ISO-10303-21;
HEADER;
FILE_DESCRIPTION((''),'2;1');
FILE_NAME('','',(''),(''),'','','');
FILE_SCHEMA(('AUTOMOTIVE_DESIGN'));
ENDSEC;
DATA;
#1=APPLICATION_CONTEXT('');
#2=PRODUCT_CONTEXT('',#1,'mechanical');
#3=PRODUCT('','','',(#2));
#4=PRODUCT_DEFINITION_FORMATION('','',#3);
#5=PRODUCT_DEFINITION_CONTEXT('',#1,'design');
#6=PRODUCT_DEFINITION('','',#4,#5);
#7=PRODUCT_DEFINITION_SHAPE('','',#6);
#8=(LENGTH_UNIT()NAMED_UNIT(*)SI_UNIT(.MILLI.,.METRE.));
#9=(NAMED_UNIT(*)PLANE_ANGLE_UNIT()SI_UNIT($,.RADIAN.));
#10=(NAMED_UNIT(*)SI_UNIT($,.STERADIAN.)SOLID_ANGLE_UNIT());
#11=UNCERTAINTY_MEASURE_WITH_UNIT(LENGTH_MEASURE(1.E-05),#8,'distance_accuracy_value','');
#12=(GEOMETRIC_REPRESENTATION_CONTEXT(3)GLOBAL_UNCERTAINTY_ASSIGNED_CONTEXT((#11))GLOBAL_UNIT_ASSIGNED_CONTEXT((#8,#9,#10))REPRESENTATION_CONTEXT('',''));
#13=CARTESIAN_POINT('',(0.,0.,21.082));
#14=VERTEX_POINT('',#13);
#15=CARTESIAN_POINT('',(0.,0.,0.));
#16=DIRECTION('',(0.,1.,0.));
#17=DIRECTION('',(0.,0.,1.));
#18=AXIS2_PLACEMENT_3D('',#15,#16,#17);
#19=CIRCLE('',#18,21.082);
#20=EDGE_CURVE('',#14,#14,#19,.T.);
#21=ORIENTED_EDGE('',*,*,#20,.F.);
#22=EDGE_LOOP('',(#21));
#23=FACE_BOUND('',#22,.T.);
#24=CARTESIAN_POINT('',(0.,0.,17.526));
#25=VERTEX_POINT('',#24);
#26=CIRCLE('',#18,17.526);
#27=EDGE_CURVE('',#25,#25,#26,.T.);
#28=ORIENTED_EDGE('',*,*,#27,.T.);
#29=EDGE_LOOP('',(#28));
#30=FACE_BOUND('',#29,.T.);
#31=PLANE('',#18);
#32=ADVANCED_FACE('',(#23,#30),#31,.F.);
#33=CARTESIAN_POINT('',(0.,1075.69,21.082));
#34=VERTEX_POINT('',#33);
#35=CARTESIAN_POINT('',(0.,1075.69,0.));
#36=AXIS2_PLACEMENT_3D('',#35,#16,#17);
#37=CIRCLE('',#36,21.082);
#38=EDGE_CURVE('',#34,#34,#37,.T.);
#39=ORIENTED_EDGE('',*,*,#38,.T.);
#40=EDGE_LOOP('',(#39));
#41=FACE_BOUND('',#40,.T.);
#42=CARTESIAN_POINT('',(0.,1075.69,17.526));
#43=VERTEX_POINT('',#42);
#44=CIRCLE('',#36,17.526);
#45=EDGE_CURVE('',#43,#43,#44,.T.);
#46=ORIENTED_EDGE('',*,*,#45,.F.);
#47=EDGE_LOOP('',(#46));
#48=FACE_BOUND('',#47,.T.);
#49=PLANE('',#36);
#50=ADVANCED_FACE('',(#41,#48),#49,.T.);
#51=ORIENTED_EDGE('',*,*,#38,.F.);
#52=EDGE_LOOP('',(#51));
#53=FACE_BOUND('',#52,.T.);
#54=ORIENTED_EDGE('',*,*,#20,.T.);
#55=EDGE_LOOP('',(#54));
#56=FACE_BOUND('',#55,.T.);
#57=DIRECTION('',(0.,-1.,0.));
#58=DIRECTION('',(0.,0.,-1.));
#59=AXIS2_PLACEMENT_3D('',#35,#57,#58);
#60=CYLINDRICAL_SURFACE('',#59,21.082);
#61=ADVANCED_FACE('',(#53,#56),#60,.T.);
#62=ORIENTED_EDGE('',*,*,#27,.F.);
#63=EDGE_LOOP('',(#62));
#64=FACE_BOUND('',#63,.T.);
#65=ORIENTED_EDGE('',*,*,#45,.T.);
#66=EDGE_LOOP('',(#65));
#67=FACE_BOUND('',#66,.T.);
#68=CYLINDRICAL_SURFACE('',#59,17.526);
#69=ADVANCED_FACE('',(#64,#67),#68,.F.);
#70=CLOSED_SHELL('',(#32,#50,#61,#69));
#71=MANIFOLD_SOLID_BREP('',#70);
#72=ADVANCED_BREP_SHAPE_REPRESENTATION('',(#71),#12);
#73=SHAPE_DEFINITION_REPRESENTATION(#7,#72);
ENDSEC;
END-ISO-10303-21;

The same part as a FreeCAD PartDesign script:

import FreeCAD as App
import Part
import Sketcher
Q = App.Units.Quantity

doc = App.newDocument("Part")
body = doc.addObject("PartDesign::Body", "Body")

# Sketch on XZ plane
sketch1 = doc.addObject("Sketcher::SketchObject", "Sketch")
body.addObject(sketch1)
sketch1.AttachmentSupport = (doc.XZ_Plane, [""])
sketch1.MapMode = "FlatFace"
sketch1.addGeometry([
    Part.Circle(App.Vector(0, 0, 0), App.Vector(0, 0, 1), 21),
    Part.Circle(App.Vector(0, 0, 0), App.Vector(0, 0, 1), 18),
], False)
sketch1.addConstraint([
    Sketcher.Constraint("Coincident", 0, 3, -1, 1),
    Sketcher.Constraint("Coincident", 1, 3, -1, 1),
    Sketcher.Constraint("Diameter", 0, Q("1.66 in")),
    Sketcher.Constraint("Diameter", 1, Q("1.38 in")),
])
pad1 = doc.addObject("PartDesign::Pad", "Pad")
body.addObject(pad1)
pad1.Profile = sketch1
pad1.Length = Q("42.35 in")
pad1.Reversed = True

doc.recompute()
